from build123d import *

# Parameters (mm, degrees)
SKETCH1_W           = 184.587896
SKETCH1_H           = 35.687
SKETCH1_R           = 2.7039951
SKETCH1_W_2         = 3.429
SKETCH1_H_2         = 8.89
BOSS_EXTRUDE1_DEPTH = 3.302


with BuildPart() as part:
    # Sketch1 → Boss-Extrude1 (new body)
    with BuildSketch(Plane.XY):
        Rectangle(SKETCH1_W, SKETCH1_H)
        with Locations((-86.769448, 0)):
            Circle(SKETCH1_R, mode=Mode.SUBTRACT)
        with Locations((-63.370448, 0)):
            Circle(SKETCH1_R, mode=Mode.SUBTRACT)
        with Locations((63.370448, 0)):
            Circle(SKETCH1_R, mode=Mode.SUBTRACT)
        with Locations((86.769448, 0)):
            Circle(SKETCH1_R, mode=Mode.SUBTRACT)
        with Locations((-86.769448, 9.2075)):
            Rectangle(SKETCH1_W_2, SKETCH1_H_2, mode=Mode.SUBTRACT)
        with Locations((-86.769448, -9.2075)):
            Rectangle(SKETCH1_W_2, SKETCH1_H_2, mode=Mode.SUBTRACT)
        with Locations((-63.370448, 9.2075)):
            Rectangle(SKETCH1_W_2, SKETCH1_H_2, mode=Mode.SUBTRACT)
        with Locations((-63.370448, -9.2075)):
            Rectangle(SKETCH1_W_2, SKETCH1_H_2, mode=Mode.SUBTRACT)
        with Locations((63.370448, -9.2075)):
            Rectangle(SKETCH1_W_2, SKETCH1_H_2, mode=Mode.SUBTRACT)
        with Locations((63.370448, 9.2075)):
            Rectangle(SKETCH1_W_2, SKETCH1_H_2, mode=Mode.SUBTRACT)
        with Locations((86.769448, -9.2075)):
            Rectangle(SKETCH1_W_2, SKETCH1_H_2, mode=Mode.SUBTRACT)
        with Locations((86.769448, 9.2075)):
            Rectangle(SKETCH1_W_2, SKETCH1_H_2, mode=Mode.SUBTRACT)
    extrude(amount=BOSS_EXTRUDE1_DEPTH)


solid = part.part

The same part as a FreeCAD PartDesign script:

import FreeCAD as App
import Part
import Sketcher
Q = App.Units.Quantity

doc = App.newDocument("Part")
body = doc.addObject("PartDesign::Body", "Body")

# Sketch on XY plane
sketch1 = body.newObject("Sketcher::SketchObject", "Sketch")
sketch1.AttachmentSupport = (doc.getObject("XY_Plane"), [""])
sketch1.MapMode = "FlatFace"
sketch1.addGeometry(Part.LineSegment(App.Vector(-92.3, 17.8, 0), App.Vector(-92.3, -17.8, 0)), False)
sketch1.addGeometry(Part.LineSegment(App.Vector(-92.3, -17.8, 0), App.Vector(92.3, -17.8, 0)), False)
sketch1.addGeometry(Part.LineSegment(App.Vector(92.3, -17.8, 0), App.Vector(92.3, 17.8, 0)), False)
sketch1.addGeometry(Part.LineSegment(App.Vector(92.3, 17.8, 0), App.Vector(-92.3, 17.8, 0)), False)
sketch1.addGeometry(Part.LineSegment(App.Vector(-85.1, -13.7, 0), App.Vector(-88.5, -13.7, 0)), False)
sketch1.addGeometry(Part.LineSegment(App.Vector(-88.5, -13.7, 0), App.Vector(-88.5, -4.8, 0)), False)
sketch1.addGeometry(Part.LineSegment(App.Vector(-88.5, -4.8, 0), App.Vector(-85.1, -4.8, 0)), False)
sketch1.addGeometry(Part.LineSegment(App.Vector(-85.1, -4.8, 0), App.Vector(-85.1, -13.7, 0)), False)
sketch1.addGeometry(Part.LineSegment(App.Vector(-61.7, -13.7, 0), App.Vector(-65.1, -13.7, 0)), False)
sketch1.addGeometry(Part.LineSegment(App.Vector(-65.1, -13.7, 0), App.Vector(-65.1, -4.8, 0)), False)
sketch1.addGeometry(Part.LineSegment(App.Vector(-65.1, -4.8, 0), App.Vector(-61.7, -4.8, 0)), False)
sketch1.addGeometry(Part.LineSegment(App.Vector(-61.7, -4.8, 0), App.Vector(-61.7, -13.7, 0)), False)
sketch1.addGeometry(Part.LineSegment(App.Vector(65.1, -13.7, 0), App.Vector(61.7, -13.7, 0)), False)
sketch1.addGeometry(Part.LineSegment(App.Vector(61.7, -13.7, 0), App.Vector(61.7, -4.8, 0)), False)
sketch1.addGeometry(Part.LineSegment(App.Vector(61.7, -4.8, 0), App.Vector(65.1, -4.8, 0)), False)
sketch1.addGeometry(Part.LineSegment(App.Vector(65.1, -4.8, 0), App.Vector(65.1, -13.7, 0)), False)
sketch1.addGeometry(Part.LineSegment(App.Vector(88.5, -13.7, 0), App.Vector(85.1, -13.7, 0)), False)
sketch1.addGeometry(Part.LineSegment(App.Vector(85.1, -13.7, 0), App.Vector(85.1, -4.8, 0)), False)
sketch1.addGeometry(Part.LineSegment(App.Vector(85.1, -4.8, 0), App.Vector(88.5, -4.8, 0)), False)
sketch1.addGeometry(Part.LineSegment(App.Vector(88.5, -4.8, 0), App.Vector(88.5, -13.7, 0)), False)
sketch1.addGeometry(Part.Circle(App.Vector(-86.8, 0, 0), App.Vector(0, 0, 1), 2.7), False)
sketch1.addGeometry(Part.Circle(App.Vector(-63.4, 0, 0), App.Vector(0, 0, 1), 2.7), False)
sketch1.addGeometry(Part.LineSegment(App.Vector(-85.1, 4.8, 0), App.Vector(-88.5, 4.8, 0)), False)
sketch1.addGeometry(Part.LineSegment(App.Vector(-88.5, 4.8, 0), App.Vector(-88.5, 13.7, 0)), False)
sketch1.addGeometry(Part.LineSegment(App.Vector(-88.5, 13.7, 0), App.Vector(-85.1, 13.7, 0)), False)
sketch1.addGeometry(Part.LineSegment(App.Vector(-85.1, 13.7, 0), App.Vector(-85.1, 4.8, 0)), False)
sketch1.addGeometry(Part.LineSegment(App.Vector(-61.7, 4.8, 0), App.Vector(-65.1, 4.8, 0)), False)
sketch1.addGeometry(Part.LineSegment(App.Vector(-65.1, 4.8, 0), App.Vector(-65.1, 13.7, 0)), False)
sketch1.addGeometry(Part.LineSegment(App.Vector(-65.1, 13.7, 0), App.Vector(-61.7, 13.7, 0)), False)
sketch1.addGeometry(Part.LineSegment(App.Vector(-61.7, 13.7, 0), App.Vector(-61.7, 4.8, 0)), False)
sketch1.addGeometry(Part.Circle(App.Vector(63.4, 0, 0), App.Vector(0, 0, 1), 2.7), False)
sketch1.addGeometry(Part.Circle(App.Vector(86.8, 0, 0), App.Vector(0, 0, 1), 2.7), False)
sketch1.addGeometry(Part.LineSegment(App.Vector(65.1, 4.8, 0), App.Vector(61.7, 4.8, 0)), False)
sketch1.addGeometry(Part.LineSegment(App.Vector(61.7, 4.8, 0), App.Vector(61.7, 13.7, 0)), False)
sketch1.addGeometry(Part.LineSegment(App.Vector(61.7, 13.7, 0), App.Vector(65.1, 13.7, 0)), False)
sketch1.addGeometry(Part.LineSegment(App.Vector(65.1, 13.7, 0), App.Vector(65.1, 4.8, 0)), False)
sketch1.addGeometry(Part.LineSegment(App.Vector(88.5, 4.8, 0), App.Vector(85.1, 4.8, 0)), False)
sketch1.addGeometry(Part.LineSegment(App.Vector(85.1, 4.8, 0), App.Vector(85.1, 13.7, 0)), False)
sketch1.addGeometry(Part.LineSegment(App.Vector(85.1, 13.7, 0), App.Vector(88.5, 13.7, 0)), False)
sketch1.addGeometry(Part.LineSegment(App.Vector(88.5, 13.7, 0), App.Vector(88.5, 4.8, 0)), False)
sketch1.addConstraint(Sketcher.Constraint("Coincident", 0, 2, 1, 1))
sketch1.addConstraint(Sketcher.Constraint("Coincident", 1, 2, 2, 1))
sketch1.addConstraint(Sketcher.Constraint("Coincident", 2, 2, 3, 1))
sketch1.addConstraint(Sketcher.Constraint("Coincident", 3, 2, 0, 1))
sketch1.addConstraint(Sketcher.Constraint("Coincident", 4, 2, 5, 1))
sketch1.addConstraint(Sketcher.Constraint("Coincident", 5, 2, 6, 1))
sketch1.addConstraint(Sketcher.Constraint("Coincident", 6, 2, 7, 1))
sketch1.addConstraint(Sketcher.Constraint("Coincident", 7, 2, 4, 1))
sketch1.addConstraint(Sketcher.Constraint("Coincident", 8, 2, 9, 1))
sketch1.addConstraint(Sketcher.Constraint("Coincident", 9, 2, 10, 1))
sketch1.addConstraint(Sketcher.Constraint("Coincident", 10, 2, 11, 1))
sketch1.addConstraint(Sketcher.Constraint("Coincident", 11, 2, 8, 1))
sketch1.addConstraint(Sketcher.Constraint("Coincident", 12, 2, 13, 1))
sketch1.addConstraint(Sketcher.Constraint("Coincident", 13, 2, 14, 1))
sketch1.addConstraint(Sketcher.Constraint("Coincident", 14, 2, 15, 1))
sketch1.addConstraint(Sketcher.Constraint("Coincident", 15, 2, 12, 1))
sketch1.addConstraint(Sketcher.Constraint("Coincident", 16, 2, 17, 1))
sketch1.addConstraint(Sketcher.Constraint("Coincident", 17, 2, 18, 1))
sketch1.addConstraint(Sketcher.Constraint("Coincident", 18, 2, 19, 1))
sketch1.addConstraint(Sketcher.Constraint("Coincident", 19, 2, 16, 1))
sketch1.addConstraint(Sketcher.Constraint("Coincident", 22, 2, 23, 1))
sketch1.addConstraint(Sketcher.Constraint("Coincident", 23, 2, 24, 1))
sketch1.addConstraint(Sketcher.Constraint("Coincident", 24, 2, 25, 1))
sketch1.addConstraint(Sketcher.Constraint("Coincident", 25, 2, 22, 1))
sketch1.addConstraint(Sketcher.Constraint("Coincident", 26, 2, 27, 1))
sketch1.addConstraint(Sketcher.Constraint("Coincident", 27, 2, 28, 1))
sketch1.addConstraint(Sketcher.Constraint("Coincident", 28, 2, 29, 1))
sketch1.addConstraint(Sketcher.Constraint("Coincident", 29, 2, 26, 1))
sketch1.addConstraint(Sketcher.Constraint("Coincident", 32, 2, 33, 1))
sketch1.addConstraint(Sketcher.Constraint("Coincident", 33, 2, 34, 1))
sketch1.addConstraint(Sketcher.Constraint("Coincident", 34, 2, 35, 1))
sketch1.addConstraint(Sketcher.Constraint("Coincident", 35, 2, 32, 1))
sketch1.addConstraint(Sketcher.Constraint("Coincident", 36, 2, 37, 1))
sketch1.addConstraint(Sketcher.Constraint("Coincident", 37, 2, 38, 1))
sketch1.addConstraint(Sketcher.Constraint("Coincident", 38, 2, 39, 1))
sketch1.addConstraint(Sketcher.Constraint("Coincident", 39, 2, 36, 1))
sketch1.addConstraint(Sketcher.Constraint("Vertical", 0))
sketch1.addConstraint(Sketcher.Constraint("Horizontal", 1))
sketch1.addConstraint(Sketcher.Constraint("Vertical", 2))
sketch1.addConstraint(Sketcher.Constraint("Horizontal", 3))
sketch1.addConstraint(Sketcher.Constraint("Horizontal", 4))
sketch1.addConstraint(Sketcher.Constraint("Vertical", 5))
sketch1.addConstraint(Sketcher.Constraint("Horizontal", 6))
sketch1.addConstraint(Sketcher.Constraint("Vertical", 7))
sketch1.addConstraint(Sketcher.Constraint("Horizontal", 8))
sketch1.addConstraint(Sketcher.Constraint("Vertical", 9))
sketch1.addConstraint(Sketcher.Constraint("Horizontal", 10))
sketch1.addConstraint(Sketcher.Constraint("Vertical", 11))
sketch1.addConstraint(Sketcher.Constraint("Horizontal", 12))
sketch1.addConstraint(Sketcher.Constraint("Vertical", 13))
sketch1.addConstraint(Sketcher.Constraint("Horizontal", 14))
sketch1.addConstraint(Sketcher.Constraint("Vertical", 15))
sketch1.addConstraint(Sketcher.Constraint("Horizontal", 16))
sketch1.addConstraint(Sketcher.Constraint("Vertical", 17))
sketch1.addConstraint(Sketcher.Constraint("Horizontal", 18))
sketch1.addConstraint(Sketcher.Constraint("Vertical", 19))
sketch1.addConstraint(Sketcher.Constraint("Horizontal", 22))
sketch1.addConstraint(Sketcher.Constraint("Vertical", 23))
sketch1.addConstraint(Sketcher.Constraint("Horizontal", 24))
sketch1.addConstraint(Sketcher.Constraint("Vertical", 25))
sketch1.addConstraint(Sketcher.Constraint("Horizontal", 26))
sketch1.addConstraint(Sketcher.Constraint("Vertical", 27))
sketch1.addConstraint(Sketcher.Constraint("Horizontal", 28))
sketch1.addConstraint(Sketcher.Constraint("Vertical", 29))
sketch1.addConstraint(Sketcher.Constraint("Horizontal", 32))
sketch1.addConstraint(Sketcher.Constraint("Vertical", 33))
sketch1.addConstraint(Sketcher.Constraint("Horizontal", 34))
sketch1.addConstraint(Sketcher.Constraint("Vertical", 35))
sketch1.addConstraint(Sketcher.Constraint("Horizontal", 36))
sketch1.addConstraint(Sketcher.Constraint("Vertical", 37))
sketch1.addConstraint(Sketcher.Constraint("Horizontal", 38))
sketch1.addConstraint(Sketcher.Constraint("Vertical", 39))
sketch1.addConstraint(Sketcher.Constraint("Equal", 20, 21))
sketch1.addConstraint(Sketcher.Constraint("Equal", 21, 30))
sketch1.addConstraint(Sketcher.Constraint("Equal", 30, 31))
sketch1.addConstraint(Sketcher.Constraint("Symmetric", 21, 3, 30, 3, -1, 1))
sketch1.addConstraint(Sketcher.Constraint("Symmetric", 20, 3, 31, 3, -1, 1))
sketch1.addConstraint(Sketcher.Constraint("Symmetric", 0, 2, 2, 2, -1, 1))
sketch1.addConstraint(Sketcher.Constraint("Symmetric", 18, 2, 22, 2, -1, 1))
sketch1.addConstraint(Sketcher.Constraint("Symmetric", 16, 2, 24, 2, -1, 1))
sketch1.addConstraint(Sketcher.Constraint("Symmetric", 14, 2, 26, 2, -1, 1))
sketch1.addConstraint(Sketcher.Constraint("Symmetric", 12, 2, 28, 2, -1, 1))
sketch1.addConstraint(Sketcher.Constraint("Symmetric", 10, 2, 32, 2, -1, 1))
sketch1.addConstraint(Sketcher.Constraint("Symmetric", 8, 2, 34, 2, -1, 1))
sketch1.addConstraint(Sketcher.Constraint("Symmetric", 6, 2, 36, 2, -1, 1))
sketch1.addConstraint(Sketcher.Constraint("Symmetric", 4, 2, 38, 2, -1, 1))
sketch1.addConstraint(Sketcher.Constraint("Symmetric", 11, 2, 12, 2, -2))
sketch1.addConstraint(Sketcher.Constraint("Symmetric", 9, 2, 14, 2, -2))
sketch1.addConstraint(Sketcher.Constraint("Symmetric", 7, 2, 16, 2, -2))
sketch1.addConstraint(Sketcher.Constraint("Symmetric", 5, 2, 18, 2, -2))
sketch1.addConstraint(Sketcher.Constraint("PointOnObject", 20, 3, -1))
sketch1.addConstraint(Sketcher.Constraint("PointOnObject", 21, 3, -1))
sketch1.addConstraint(Sketcher.Constraint("Horizontal", 7, 2, 8, 2))
sketch1.addConstraint(Sketcher.Constraint("Horizontal", 6, 2, 9, 2))
sketch1.addConstraint(Sketcher.Constraint("Equal", 6, 8))
sketch1.addConstraint(Sketcher.Constraint("DistanceY", 5, 1, 5, 2, Q("0.35 in")))
sketch1.addConstraint(Sketcher.Constraint("DistanceX", 4, 2, 4, 1, Q("0.135 in")))
sketch1.addConstraint(Sketcher.Constraint("DistanceY", 0, 2, 0, 1, Q("1.405 in")))
sketch1.addConstraint(Sketcher.Constraint("DistanceX", 0, 2, 4, 2, Q("0.15 in")))
sketch1.addConstraint(Sketcher.Constraint("DistanceY", 4, 2, 3, 2, Q("1.24 in")))
sketch1.addConstraint(Sketcher.Constraint("Diameter", 20, Q("5.40799 mm")))
sketch1.addConstraint(Sketcher.Constraint("DistanceX", 0, 2, 20, 3, Q("0.2175 in")))
sketch1.addConstraint(Sketcher.Constraint("DistanceX", 8, 2, 21, 3, Q("0.0675 in")))
sketch1.addConstraint(Sketcher.Constraint("DistanceX", 20, 3, 21, 3, Q("23.399 mm")))
sketch1.addConstraint(Sketcher.Constraint("DistanceX", 1, 1, 1, 2, Q("184.587896 mm")))
pad1 = body.newObject("PartDesign::Pad", "Pad")
pad1.Profile = sketch1
pad1.Length = Q("0.13 in")

doc.recompute()
